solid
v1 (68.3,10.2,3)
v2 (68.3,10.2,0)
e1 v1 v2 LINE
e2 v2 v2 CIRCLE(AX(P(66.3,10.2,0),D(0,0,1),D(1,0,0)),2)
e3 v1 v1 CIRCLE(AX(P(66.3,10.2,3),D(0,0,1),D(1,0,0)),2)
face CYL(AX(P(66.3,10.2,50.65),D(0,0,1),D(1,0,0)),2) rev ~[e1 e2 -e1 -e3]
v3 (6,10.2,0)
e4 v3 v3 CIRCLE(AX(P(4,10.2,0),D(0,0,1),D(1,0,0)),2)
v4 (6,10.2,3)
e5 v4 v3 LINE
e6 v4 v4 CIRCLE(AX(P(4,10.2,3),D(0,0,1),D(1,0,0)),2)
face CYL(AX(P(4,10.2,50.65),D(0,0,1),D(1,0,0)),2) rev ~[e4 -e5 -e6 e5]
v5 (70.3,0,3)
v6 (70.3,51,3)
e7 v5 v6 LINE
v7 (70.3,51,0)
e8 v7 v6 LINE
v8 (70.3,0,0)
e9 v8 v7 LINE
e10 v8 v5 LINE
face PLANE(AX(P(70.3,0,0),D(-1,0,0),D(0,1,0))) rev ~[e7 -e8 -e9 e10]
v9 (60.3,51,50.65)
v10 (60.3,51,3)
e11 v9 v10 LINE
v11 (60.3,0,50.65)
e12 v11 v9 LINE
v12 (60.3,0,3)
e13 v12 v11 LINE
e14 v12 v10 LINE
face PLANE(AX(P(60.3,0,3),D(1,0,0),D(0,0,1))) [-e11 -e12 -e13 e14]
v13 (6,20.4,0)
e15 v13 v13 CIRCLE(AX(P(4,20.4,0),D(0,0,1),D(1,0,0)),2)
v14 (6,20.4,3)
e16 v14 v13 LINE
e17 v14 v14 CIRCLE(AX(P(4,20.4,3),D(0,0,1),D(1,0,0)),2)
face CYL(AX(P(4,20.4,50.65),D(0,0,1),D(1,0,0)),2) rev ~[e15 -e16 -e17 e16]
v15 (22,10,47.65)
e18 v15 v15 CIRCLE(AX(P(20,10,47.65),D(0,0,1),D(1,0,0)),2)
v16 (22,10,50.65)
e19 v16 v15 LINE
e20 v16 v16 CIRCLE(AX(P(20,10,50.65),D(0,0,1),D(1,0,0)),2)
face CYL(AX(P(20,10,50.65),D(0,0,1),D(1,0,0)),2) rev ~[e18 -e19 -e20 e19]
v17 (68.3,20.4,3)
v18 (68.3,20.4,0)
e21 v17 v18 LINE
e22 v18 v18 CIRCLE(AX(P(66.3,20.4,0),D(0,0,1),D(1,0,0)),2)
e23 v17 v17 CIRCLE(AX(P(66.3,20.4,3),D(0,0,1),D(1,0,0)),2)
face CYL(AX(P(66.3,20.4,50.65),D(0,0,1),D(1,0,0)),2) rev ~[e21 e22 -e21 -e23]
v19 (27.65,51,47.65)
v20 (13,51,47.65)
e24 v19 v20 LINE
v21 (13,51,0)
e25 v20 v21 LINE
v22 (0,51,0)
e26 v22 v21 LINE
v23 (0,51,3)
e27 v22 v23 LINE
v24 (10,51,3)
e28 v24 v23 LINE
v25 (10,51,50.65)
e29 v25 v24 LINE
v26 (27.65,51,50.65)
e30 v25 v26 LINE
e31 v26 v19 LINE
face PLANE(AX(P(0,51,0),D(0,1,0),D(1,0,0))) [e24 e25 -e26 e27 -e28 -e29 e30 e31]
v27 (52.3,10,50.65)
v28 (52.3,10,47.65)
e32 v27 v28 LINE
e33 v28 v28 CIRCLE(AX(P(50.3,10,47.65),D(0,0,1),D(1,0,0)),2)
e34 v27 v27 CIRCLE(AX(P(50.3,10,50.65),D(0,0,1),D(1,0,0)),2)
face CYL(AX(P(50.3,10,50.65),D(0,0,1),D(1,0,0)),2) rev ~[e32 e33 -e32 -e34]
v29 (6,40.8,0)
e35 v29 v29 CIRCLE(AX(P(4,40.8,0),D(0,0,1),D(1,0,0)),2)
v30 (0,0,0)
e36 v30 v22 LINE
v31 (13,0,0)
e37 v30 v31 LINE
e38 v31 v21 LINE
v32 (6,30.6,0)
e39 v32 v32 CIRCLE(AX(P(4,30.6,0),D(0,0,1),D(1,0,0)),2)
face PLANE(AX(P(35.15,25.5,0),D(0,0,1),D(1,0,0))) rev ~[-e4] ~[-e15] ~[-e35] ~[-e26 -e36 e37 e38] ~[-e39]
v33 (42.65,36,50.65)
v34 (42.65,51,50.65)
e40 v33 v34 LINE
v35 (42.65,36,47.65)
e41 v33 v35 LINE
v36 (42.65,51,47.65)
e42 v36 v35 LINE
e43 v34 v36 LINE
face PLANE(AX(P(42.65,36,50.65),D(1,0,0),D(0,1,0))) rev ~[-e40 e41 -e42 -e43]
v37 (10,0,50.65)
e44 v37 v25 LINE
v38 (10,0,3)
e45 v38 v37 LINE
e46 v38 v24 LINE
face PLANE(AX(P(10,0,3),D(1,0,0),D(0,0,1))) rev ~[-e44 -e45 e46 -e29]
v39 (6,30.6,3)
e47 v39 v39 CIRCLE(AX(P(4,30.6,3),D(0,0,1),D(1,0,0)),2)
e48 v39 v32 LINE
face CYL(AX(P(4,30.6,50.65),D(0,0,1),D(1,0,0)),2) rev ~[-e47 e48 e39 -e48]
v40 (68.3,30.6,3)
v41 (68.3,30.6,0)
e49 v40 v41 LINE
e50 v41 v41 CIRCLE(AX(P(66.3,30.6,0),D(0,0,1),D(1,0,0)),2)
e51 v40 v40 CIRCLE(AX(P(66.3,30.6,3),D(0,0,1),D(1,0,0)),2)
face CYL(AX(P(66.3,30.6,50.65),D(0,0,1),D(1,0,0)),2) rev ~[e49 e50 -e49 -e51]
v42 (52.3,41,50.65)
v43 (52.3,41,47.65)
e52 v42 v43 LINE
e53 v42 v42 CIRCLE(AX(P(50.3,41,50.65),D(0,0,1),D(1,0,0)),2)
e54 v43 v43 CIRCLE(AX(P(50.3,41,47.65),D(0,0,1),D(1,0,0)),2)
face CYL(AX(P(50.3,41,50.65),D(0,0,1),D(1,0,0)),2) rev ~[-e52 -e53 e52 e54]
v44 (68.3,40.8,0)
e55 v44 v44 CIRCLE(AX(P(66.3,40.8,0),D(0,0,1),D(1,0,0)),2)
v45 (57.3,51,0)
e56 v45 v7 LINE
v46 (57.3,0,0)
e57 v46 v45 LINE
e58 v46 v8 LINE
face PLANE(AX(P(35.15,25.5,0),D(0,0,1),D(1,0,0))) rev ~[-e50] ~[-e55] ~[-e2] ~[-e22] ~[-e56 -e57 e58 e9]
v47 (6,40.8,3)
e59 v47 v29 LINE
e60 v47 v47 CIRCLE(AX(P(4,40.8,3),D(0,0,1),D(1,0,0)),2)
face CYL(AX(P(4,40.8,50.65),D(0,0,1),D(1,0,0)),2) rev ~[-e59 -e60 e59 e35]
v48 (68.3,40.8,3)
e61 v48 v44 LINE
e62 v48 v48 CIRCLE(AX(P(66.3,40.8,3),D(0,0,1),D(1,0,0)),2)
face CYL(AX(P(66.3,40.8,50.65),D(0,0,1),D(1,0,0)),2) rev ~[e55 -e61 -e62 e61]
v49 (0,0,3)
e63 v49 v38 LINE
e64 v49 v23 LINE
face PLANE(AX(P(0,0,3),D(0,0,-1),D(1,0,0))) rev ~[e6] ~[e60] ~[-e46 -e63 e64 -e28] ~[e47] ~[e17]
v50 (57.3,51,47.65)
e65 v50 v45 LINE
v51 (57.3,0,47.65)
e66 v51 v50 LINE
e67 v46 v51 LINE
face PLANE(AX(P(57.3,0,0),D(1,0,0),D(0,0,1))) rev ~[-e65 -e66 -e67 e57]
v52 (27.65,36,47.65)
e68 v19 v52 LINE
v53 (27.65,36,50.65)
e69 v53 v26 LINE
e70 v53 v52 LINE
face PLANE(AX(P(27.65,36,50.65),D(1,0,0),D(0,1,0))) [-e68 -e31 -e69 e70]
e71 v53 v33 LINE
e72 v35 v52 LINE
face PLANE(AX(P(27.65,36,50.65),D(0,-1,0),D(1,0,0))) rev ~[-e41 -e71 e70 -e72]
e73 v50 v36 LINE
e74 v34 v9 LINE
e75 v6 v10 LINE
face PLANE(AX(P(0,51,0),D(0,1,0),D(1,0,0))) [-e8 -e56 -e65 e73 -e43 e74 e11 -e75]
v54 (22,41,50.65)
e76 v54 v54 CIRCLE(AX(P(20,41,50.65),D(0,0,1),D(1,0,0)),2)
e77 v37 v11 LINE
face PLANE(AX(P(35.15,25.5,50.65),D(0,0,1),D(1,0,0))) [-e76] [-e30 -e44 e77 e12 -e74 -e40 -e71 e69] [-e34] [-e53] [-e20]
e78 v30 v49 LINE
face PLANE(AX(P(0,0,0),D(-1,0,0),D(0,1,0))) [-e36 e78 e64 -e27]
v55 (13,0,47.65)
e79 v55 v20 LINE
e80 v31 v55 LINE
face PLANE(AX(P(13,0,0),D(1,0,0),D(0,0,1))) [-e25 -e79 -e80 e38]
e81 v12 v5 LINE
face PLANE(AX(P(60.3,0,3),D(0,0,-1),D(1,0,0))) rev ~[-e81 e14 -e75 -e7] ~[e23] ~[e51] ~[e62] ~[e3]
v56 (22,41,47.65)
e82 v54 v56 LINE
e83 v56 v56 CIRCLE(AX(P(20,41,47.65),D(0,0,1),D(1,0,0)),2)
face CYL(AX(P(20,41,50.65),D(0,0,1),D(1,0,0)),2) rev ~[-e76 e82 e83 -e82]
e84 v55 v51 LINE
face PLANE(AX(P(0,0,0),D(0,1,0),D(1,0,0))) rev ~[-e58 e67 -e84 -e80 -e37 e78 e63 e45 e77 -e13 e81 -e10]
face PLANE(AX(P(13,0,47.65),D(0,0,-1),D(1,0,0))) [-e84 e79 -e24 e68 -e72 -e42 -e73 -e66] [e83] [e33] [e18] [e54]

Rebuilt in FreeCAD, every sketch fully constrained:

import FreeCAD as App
import Part
import Sketcher
from FreeCAD import Vector

doc = App.newDocument("Part")
body = doc.addObject("PartDesign::Body", "Body")

# Sketch on XY plane
sketch1 = body.newObject("Sketcher::SketchObject", "Sketch")
sketch1.AttachmentSupport = (doc.getObject("XY_Plane"), [""])
sketch1.MapMode = "FlatFace"
sketch1.addGeometry(Part.LineSegment(Vector(0, 51, 0), Vector(0, 0, 0)), False)
sketch1.addGeometry(Part.LineSegment(Vector(0, 0, 0), Vector(70, 0, 0)), False)
sketch1.addGeometry(Part.LineSegment(Vector(70, 0, 0), Vector(70, 51, 0)), False)
sketch1.addGeometry(Part.LineSegment(Vector(70, 51, 0), Vector(0, 51, 0)), False)
sketch1.addConstraint(Sketcher.Constraint("Coincident", 0, 2, 1, 1))
sketch1.addConstraint(Sketcher.Constraint("Coincident", 1, 2, 2, 1))
sketch1.addConstraint(Sketcher.Constraint("Coincident", 2, 2, 3, 1))
sketch1.addConstraint(Sketcher.Constraint("Coincident", 3, 2, 0, 1))
sketch1.addConstraint(Sketcher.Constraint("Vertical", 0))
sketch1.addConstraint(Sketcher.Constraint("Horizontal", 1))
sketch1.addConstraint(Sketcher.Constraint("Vertical", 2))
sketch1.addConstraint(Sketcher.Constraint("Horizontal", 3))
sketch1.addConstraint(Sketcher.Constraint("Coincident", 0, 2, -1, 1))
sketch1.addConstraint(Sketcher.Constraint("DistanceY", 0, 2, 0, 1, 51.0))
sketch1.addConstraint(Sketcher.Constraint("DistanceX", 1, 1, 1, 2, 70.3))
pad1 = body.newObject("PartDesign::Pad", "Pad")
pad1.Profile = sketch1
pad1.Length = 50.65

# Sketch on XZ plane
sketch2 = body.newObject("Sketcher::SketchObject", "Sketch001")
sketch2.AttachmentSupport = (doc.getObject("XZ_Plane"), [""])
sketch2.MapMode = "FlatFace"
sketch2.addGeometry(Part.LineSegment(Vector(13, 48, 0), Vector(13, 0, 0)), False)
sketch2.addGeometry(Part.LineSegment(Vector(13, 0, 0), Vector(57, 0, 0)), False)
sketch2.addGeometry(Part.LineSegment(Vector(57, 0, 0), Vector(57, 48, 0)), False)
sketch2.addGeometry(Part.LineSegment(Vector(57, 48, 0), Vector(13, 48, 0)), False)
sketch2.addGeometry(Part.LineSegment(Vector(0, 51, 0), Vector(0, 3, 0)), False)
sketch2.addGeometry(Part.LineSegment(Vector(0, 3, 0), Vector(10, 3, 0)), False)
sketch2.addGeometry(Part.LineSegment(Vector(10, 3, 0), Vector(10, 51, 0)), False)
sketch2.addGeometry(Part.LineSegment(Vector(10, 51, 0), Vector(0, 51, 0)), False)
sketch2.addGeometry(Part.LineSegment(Vector(60, 51, 0), Vector(60, 3, 0)), False)
sketch2.addGeometry(Part.LineSegment(Vector(60, 3, 0), Vector(70, 3, 0)), False)
sketch2.addGeometry(Part.LineSegment(Vector(70, 3, 0), Vector(70, 51, 0)), False)
sketch2.addGeometry(Part.LineSegment(Vector(70, 51, 0), Vector(60, 51, 0)), False)
sketch2.addConstraint(Sketcher.Constraint("Coincident", 0, 2, 1, 1))
sketch2.addConstraint(Sketcher.Constraint("Coincident", 1, 2, 2, 1))
sketch2.addConstraint(Sketcher.Constraint("Coincident", 2, 2, 3, 1))
sketch2.addConstraint(Sketcher.Constraint("Coincident", 3, 2, 0, 1))
sketch2.addConstraint(Sketcher.Constraint("Coincident", 4, 2, 5, 1))
sketch2.addConstraint(Sketcher.Constraint("Coincident", 5, 2, 6, 1))
sketch2.addConstraint(Sketcher.Constraint("Coincident", 6, 2, 7, 1))
sketch2.addConstraint(Sketcher.Constraint("Coincident", 7, 2, 4, 1))
sketch2.addConstraint(Sketcher.Constraint("Coincident", 8, 2, 9, 1))
sketch2.addConstraint(Sketcher.Constraint("Coincident", 9, 2, 10, 1))
sketch2.addConstraint(Sketcher.Constraint("Coincident", 10, 2, 11, 1))
sketch2.addConstraint(Sketcher.Constraint("Coincident", 11, 2, 8, 1))
sketch2.addConstraint(Sketcher.Constraint("Vertical", 0))
sketch2.addConstraint(Sketcher.Constraint("Horizontal", 1))
sketch2.addConstraint(Sketcher.Constraint("Vertical", 2))
sketch2.addConstraint(Sketcher.Constraint("Horizontal", 3))
sketch2.addConstraint(Sketcher.Constraint("Vertical", 4))
sketch2.addConstraint(Sketcher.Constraint("Horizontal", 5))
sketch2.addConstraint(Sketcher.Constraint("Vertical", 6))
sketch2.addConstraint(Sketcher.Constraint("Horizontal", 7))
sketch2.addConstraint(Sketcher.Constraint("Vertical", 8))
sketch2.addConstraint(Sketcher.Constraint("Horizontal", 9))
sketch2.addConstraint(Sketcher.Constraint("Vertical", 10))
sketch2.addConstraint(Sketcher.Constraint("Horizontal", 11))
sketch2.addConstraint(Sketcher.Constraint("PointOnObject", 0, 2, -1))
sketch2.addConstraint(Sketcher.Constraint("PointOnObject", 4, 2, -2))
sketch2.addConstraint(Sketcher.Constraint("Horizontal", 5, 2, 8, 2))
sketch2.addConstraint(Sketcher.Constraint("Horizontal", 7, 2, 10, 2))
sketch2.addConstraint(Sketcher.Constraint("Equal", 7, 9))
sketch2.addConstraint(Sketcher.Constraint("Equal", 2, 4))
sketch2.addConstraint(Sketcher.Constraint("DistanceX", 5, 1, 5, 2, 10.0))
sketch2.addConstraint(Sketcher.Constraint("DistanceX", 1, 1, 1, 2, 44.3))
sketch2.addConstraint(Sketcher.Constraint("DistanceX", -1, 1, 0, 2, 13.0))
sketch2.addConstraint(Sketcher.Constraint("DistanceY", -1, 1, 4, 2, 3.0))
sketch2.addConstraint(Sketcher.Constraint("DistanceX", 1, 2, 8, 2, 3.0))
sketch2.addConstraint(Sketcher.Constraint("DistanceY", 0, 2, 0, 1, 47.65))
pocket1 = body.newObject("PartDesign::Pocket", "Pocket")
pocket1.Profile = sketch2
pocket1.Type = "ThroughAll"

# Sketch on XY plane
sketch3 = body.newObject("Sketcher::SketchObject", "Sketch002")
sketch3.AttachmentSupport = (doc.getObject("XY_Plane"), [""])
sketch3.MapMode = "FlatFace"
sketch3.AttachmentOffset = App.Placement(Vector(0, 0, 50.65), App.Rotation())
sketch3.addGeometry(Part.Circle(Vector(20, 41, 0), Vector(0, 0, 1), 2), False)
sketch3.addGeometry(Part.Circle(Vector(50.3, 41, 0), Vector(0, 0, 1), 2), False)
sketch3.addGeometry(Part.Circle(Vector(20, 10, 0), Vector(0, 0, 1), 2), False)
sketch3.addGeometry(Part.Circle(Vector(50.3, 10, 0), Vector(0, 0, 1), 2), False)
sketch3.addGeometry(Part.Circle(Vector(4, 40.8, 0), Vector(0, 0, 1), 2), False)
sketch3.addGeometry(Part.Circle(Vector(4, 30.6, 0), Vector(0, 0, 1), 2), False)
sketch3.addGeometry(Part.Circle(Vector(4, 20.4, 0), Vector(0, 0, 1), 2), False)
sketch3.addGeometry(Part.Circle(Vector(4, 10.2, 0), Vector(0, 0, 1), 2), False)
sketch3.addGeometry(Part.Circle(Vector(66.3, 40.8, 0), Vector(0, 0, 1), 2), False)
sketch3.addGeometry(Part.Circle(Vector(66.3, 30.6, 0), Vector(0, 0, 1), 2), False)
sketch3.addGeometry(Part.Circle(Vector(66.3, 20.4, 0), Vector(0, 0, 1), 2), False)
sketch3.addGeometry(Part.Circle(Vector(66.3, 10.2, 0), Vector(0, 0, 1), 2), False)
sketch3.addGeometry(Part.LineSegment(Vector(27.6, 51, 0), Vector(27.6, 36, 0)), False)
sketch3.addGeometry(Part.LineSegment(Vector(27.6, 36, 0), Vector(42.6, 36, 0)), False)
sketch3.addGeometry(Part.LineSegment(Vector(42.6, 36, 0), Vector(42.6, 51, 0)), False)
sketch3.addGeometry(Part.LineSegment(Vector(42.6, 51, 0), Vector(27.6, 51, 0)), False)
sketch3.addConstraint(Sketcher.Constraint("Coincident", 12, 2, 13, 1))
sketch3.addConstraint(Sketcher.Constraint("Coincident", 13, 2, 14, 1))
sketch3.addConstraint(Sketcher.Constraint("Coincident", 14, 2, 15, 1))
sketch3.addConstraint(Sketcher.Constraint("Coincident", 15, 2, 12, 1))
sketch3.addConstraint(Sketcher.Constraint("Vertical", 12))
sketch3.addConstraint(Sketcher.Constraint("Horizontal", 13))
sketch3.addConstraint(Sketcher.Constraint("Vertical", 14))
sketch3.addConstraint(Sketcher.Constraint("Horizontal", 15))
sketch3.addConstraint(Sketcher.Constraint("Equal", 0, 1))
sketch3.addConstraint(Sketcher.Constraint("Equal", 1, 2))
sketch3.addConstraint(Sketcher.Constraint("Equal", 2, 3))
sketch3.addConstraint(Sketcher.Constraint("Equal", 3, 4))
sketch3.addConstraint(Sketcher.Constraint("Equal", 4, 5))
sketch3.addConstraint(Sketcher.Constraint("Equal", 5, 6))
sketch3.addConstraint(Sketcher.Constraint("Equal", 6, 7))
sketch3.addConstraint(Sketcher.Constraint("Equal", 7, 8))
sketch3.addConstraint(Sketcher.Constraint("Equal", 8, 9))
sketch3.addConstraint(Sketcher.Constraint("Equal", 9, 10))
sketch3.addConstraint(Sketcher.Constraint("Equal", 10, 11))
sketch3.addConstraint(Sketcher.Constraint("Horizontal", 0, 3, 1, 3))
sketch3.addConstraint(Sketcher.Constraint("Horizontal", 2, 3, 3, 3))
sketch3.addConstraint(Sketcher.Constraint("Horizontal", 4, 3, 8, 3))
sketch3.addConstraint(Sketcher.Constraint("Horizontal", 5, 3, 9, 3))
sketch3.addConstraint(Sketcher.Constraint("Horizontal", 6, 3, 10, 3))
sketch3.addConstraint(Sketcher.Constraint("Horizontal", 7, 3, 11, 3))
sketch3.addConstraint(Sketcher.Constraint("Vertical", 0, 3, 2, 3))
sketch3.addConstraint(Sketcher.Constraint("Vertical", 1, 3, 3, 3))
sketch3.addConstraint(Sketcher.Constraint("Vertical", 4, 3, 5, 3))
sketch3.addConstraint(Sketcher.Constraint("Vertical", 5, 3, 6, 3))
sketch3.addConstraint(Sketcher.Constraint("Vertical", 6, 3, 7, 3))
sketch3.addConstraint(Sketcher.Constraint("Vertical", 8, 3, 9, 3))
sketch3.addConstraint(Sketcher.Constraint("Vertical", 9, 3, 10, 3))
sketch3.addConstraint(Sketcher.Constraint("Vertical", 10, 3, 11, 3))
sketch3.addConstraint(Sketcher.Constraint("Equal", 15, 12))
sketch3.addConstraint(Sketcher.Constraint("Diameter", 0, 4.0))
sketch3.addConstraint(Sketcher.Constraint("DistanceX", 13, 1, 13, 2, 15.0))
sketch3.addConstraint(Sketcher.Constraint("DistanceX", -1, 1, 0, 3, 20.0))
sketch3.addConstraint(Sketcher.Constraint("DistanceY", -1, 1, 0, 3, 41.0))
sketch3.addConstraint(Sketcher.Constraint("DistanceY", -1, 1, 2, 3, 10.0))
sketch3.addConstraint(Sketcher.Constraint("DistanceX", -1, 1, 4, 3, 4.0))
sketch3.addConstraint(Sketcher.Constraint("DistanceY", -1, 1, 12, 2, 36.0))
sketch3.addConstraint(Sketcher.Constraint("DistanceX", 1, 3, 8, 3, 16.0))
sketch3.addConstraint(Sketcher.Constraint("DistanceX", -1, 1, 1, 3, 50.3))
sketch3.addConstraint(Sketcher.Constraint("DistanceY", -1, 1, 4, 3, 40.8))
sketch3.addConstraint(Sketcher.Constraint("DistanceY", -1, 1, 5, 3, 30.6))
sketch3.addConstraint(Sketcher.Constraint("DistanceY", -1, 1, 6, 3, 20.4))
sketch3.addConstraint(Sketcher.Constraint("DistanceY", -1, 1, 7, 3, 10.2))
sketch3.addConstraint(Sketcher.Constraint("DistanceX", -1, 1, 12, 2, 27.65))
pocket2 = body.newObject("PartDesign::Pocket", "Pocket001")
pocket2.Profile = sketch3
pocket2.Type = "ThroughAll"

doc.recompute()
